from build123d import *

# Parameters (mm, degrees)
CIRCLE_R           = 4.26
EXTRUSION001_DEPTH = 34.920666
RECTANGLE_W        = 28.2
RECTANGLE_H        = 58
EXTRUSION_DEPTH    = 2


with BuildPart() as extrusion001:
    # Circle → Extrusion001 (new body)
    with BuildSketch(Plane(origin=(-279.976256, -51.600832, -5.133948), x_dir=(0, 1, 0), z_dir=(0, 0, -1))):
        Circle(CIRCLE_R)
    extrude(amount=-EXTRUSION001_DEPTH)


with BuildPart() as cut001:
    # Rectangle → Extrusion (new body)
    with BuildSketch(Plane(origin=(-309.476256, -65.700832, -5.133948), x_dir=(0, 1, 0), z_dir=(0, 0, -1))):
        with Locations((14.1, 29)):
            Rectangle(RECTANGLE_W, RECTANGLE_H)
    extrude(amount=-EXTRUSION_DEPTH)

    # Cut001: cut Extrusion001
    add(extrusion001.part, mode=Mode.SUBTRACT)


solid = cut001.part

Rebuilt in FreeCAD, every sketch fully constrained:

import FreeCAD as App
import Part
import Sketcher
from FreeCAD import Vector


def add_polygon(sketch, points):
    """Adds a closed chain of lines whose ends are joined by coincident constraints."""
    first, n = sketch.GeometryCount, len(points)
    for a, b in zip(points, points[1:] + points[:1]):
        sketch.addGeometry(Part.LineSegment(App.Vector(*a, 0), App.Vector(*b, 0)), False)
    for i in range(n):
        sketch.addConstraint(Sketcher.Constraint("Coincident", first + i, 2, first + (i + 1) % n, 1))

doc = App.newDocument("Part")
body = doc.addObject("PartDesign::Body", "Body")

# Sketch on XY plane
sketch1 = doc.addObject("Sketcher::SketchObject", "Sketch")
body.addObject(sketch1)
sketch1.AttachmentSupport = (doc.XY_Plane, [""])
sketch1.MapMode = "FlatFace"
sketch1.AttachmentOffset = App.Placement(Vector(0, 0, -5.133948), App.Rotation())
sketch1.addGeometry(Part.Circle(Vector(-280, -51.6, 0), Vector(0, 0, 1), 4.3), False)
sketch1.addConstraint(Sketcher.Constraint("Diameter", 0, 8.52))
sketch1.addConstraint(Sketcher.Constraint("DistanceY", 0, 3, -1, 1, 51.600832))
sketch1.addConstraint(Sketcher.Constraint("DistanceX", 0, 3, -1, 1, 279.976256))
pad1 = doc.addObject("PartDesign::Pad", "Pad")
body.addObject(pad1)
pad1.Profile = sketch1
pad1.Length = 34.920666
body2 = doc.addObject("PartDesign::Body", "Body001")

# Sketch on XY plane
sketch2 = doc.addObject("Sketcher::SketchObject", "Sketch001")
body2.addObject(sketch2)
sketch2.AttachmentSupport = (doc.getObject("XY_Plane001"), [""])
sketch2.MapMode = "FlatFace"
sketch2.AttachmentOffset = App.Placement(Vector(0, 0, -5.133948), App.Rotation())
add_polygon(sketch2, [(-251, -66), (-309, -66), (-309, -38), (-251, -38)])  # lines 0-3
sketch2.addConstraint(Sketcher.Constraint("Horizontal", 0))
sketch2.addConstraint(Sketcher.Constraint("Vertical", 1))
sketch2.addConstraint(Sketcher.Constraint("Horizontal", 2))
sketch2.addConstraint(Sketcher.Constraint("Vertical", 3))
sketch2.addConstraint(Sketcher.Constraint("DistanceX", 0, 2, 0, 1, 58.0))
sketch2.addConstraint(Sketcher.Constraint("DistanceY", 1, 1, 1, 2, 28.2))
sketch2.addConstraint(Sketcher.Constraint("DistanceX", 0, 2, -1, 1, 309.476256))
sketch2.addConstraint(Sketcher.Constraint("DistanceY", 0, 2, -1, 1, 65.700832))
pad2 = doc.addObject("PartDesign::Pad", "Pad001")
body2.addObject(pad2)
pad2.Profile = sketch2
pad2.Length = 2
doc.recompute()

boolean = doc.addObject("PartDesign::Boolean", "Boolean")
body2.addObject(boolean)
boolean.Type = "Cut"
boolean.addObjects([body])

doc.recompute()
